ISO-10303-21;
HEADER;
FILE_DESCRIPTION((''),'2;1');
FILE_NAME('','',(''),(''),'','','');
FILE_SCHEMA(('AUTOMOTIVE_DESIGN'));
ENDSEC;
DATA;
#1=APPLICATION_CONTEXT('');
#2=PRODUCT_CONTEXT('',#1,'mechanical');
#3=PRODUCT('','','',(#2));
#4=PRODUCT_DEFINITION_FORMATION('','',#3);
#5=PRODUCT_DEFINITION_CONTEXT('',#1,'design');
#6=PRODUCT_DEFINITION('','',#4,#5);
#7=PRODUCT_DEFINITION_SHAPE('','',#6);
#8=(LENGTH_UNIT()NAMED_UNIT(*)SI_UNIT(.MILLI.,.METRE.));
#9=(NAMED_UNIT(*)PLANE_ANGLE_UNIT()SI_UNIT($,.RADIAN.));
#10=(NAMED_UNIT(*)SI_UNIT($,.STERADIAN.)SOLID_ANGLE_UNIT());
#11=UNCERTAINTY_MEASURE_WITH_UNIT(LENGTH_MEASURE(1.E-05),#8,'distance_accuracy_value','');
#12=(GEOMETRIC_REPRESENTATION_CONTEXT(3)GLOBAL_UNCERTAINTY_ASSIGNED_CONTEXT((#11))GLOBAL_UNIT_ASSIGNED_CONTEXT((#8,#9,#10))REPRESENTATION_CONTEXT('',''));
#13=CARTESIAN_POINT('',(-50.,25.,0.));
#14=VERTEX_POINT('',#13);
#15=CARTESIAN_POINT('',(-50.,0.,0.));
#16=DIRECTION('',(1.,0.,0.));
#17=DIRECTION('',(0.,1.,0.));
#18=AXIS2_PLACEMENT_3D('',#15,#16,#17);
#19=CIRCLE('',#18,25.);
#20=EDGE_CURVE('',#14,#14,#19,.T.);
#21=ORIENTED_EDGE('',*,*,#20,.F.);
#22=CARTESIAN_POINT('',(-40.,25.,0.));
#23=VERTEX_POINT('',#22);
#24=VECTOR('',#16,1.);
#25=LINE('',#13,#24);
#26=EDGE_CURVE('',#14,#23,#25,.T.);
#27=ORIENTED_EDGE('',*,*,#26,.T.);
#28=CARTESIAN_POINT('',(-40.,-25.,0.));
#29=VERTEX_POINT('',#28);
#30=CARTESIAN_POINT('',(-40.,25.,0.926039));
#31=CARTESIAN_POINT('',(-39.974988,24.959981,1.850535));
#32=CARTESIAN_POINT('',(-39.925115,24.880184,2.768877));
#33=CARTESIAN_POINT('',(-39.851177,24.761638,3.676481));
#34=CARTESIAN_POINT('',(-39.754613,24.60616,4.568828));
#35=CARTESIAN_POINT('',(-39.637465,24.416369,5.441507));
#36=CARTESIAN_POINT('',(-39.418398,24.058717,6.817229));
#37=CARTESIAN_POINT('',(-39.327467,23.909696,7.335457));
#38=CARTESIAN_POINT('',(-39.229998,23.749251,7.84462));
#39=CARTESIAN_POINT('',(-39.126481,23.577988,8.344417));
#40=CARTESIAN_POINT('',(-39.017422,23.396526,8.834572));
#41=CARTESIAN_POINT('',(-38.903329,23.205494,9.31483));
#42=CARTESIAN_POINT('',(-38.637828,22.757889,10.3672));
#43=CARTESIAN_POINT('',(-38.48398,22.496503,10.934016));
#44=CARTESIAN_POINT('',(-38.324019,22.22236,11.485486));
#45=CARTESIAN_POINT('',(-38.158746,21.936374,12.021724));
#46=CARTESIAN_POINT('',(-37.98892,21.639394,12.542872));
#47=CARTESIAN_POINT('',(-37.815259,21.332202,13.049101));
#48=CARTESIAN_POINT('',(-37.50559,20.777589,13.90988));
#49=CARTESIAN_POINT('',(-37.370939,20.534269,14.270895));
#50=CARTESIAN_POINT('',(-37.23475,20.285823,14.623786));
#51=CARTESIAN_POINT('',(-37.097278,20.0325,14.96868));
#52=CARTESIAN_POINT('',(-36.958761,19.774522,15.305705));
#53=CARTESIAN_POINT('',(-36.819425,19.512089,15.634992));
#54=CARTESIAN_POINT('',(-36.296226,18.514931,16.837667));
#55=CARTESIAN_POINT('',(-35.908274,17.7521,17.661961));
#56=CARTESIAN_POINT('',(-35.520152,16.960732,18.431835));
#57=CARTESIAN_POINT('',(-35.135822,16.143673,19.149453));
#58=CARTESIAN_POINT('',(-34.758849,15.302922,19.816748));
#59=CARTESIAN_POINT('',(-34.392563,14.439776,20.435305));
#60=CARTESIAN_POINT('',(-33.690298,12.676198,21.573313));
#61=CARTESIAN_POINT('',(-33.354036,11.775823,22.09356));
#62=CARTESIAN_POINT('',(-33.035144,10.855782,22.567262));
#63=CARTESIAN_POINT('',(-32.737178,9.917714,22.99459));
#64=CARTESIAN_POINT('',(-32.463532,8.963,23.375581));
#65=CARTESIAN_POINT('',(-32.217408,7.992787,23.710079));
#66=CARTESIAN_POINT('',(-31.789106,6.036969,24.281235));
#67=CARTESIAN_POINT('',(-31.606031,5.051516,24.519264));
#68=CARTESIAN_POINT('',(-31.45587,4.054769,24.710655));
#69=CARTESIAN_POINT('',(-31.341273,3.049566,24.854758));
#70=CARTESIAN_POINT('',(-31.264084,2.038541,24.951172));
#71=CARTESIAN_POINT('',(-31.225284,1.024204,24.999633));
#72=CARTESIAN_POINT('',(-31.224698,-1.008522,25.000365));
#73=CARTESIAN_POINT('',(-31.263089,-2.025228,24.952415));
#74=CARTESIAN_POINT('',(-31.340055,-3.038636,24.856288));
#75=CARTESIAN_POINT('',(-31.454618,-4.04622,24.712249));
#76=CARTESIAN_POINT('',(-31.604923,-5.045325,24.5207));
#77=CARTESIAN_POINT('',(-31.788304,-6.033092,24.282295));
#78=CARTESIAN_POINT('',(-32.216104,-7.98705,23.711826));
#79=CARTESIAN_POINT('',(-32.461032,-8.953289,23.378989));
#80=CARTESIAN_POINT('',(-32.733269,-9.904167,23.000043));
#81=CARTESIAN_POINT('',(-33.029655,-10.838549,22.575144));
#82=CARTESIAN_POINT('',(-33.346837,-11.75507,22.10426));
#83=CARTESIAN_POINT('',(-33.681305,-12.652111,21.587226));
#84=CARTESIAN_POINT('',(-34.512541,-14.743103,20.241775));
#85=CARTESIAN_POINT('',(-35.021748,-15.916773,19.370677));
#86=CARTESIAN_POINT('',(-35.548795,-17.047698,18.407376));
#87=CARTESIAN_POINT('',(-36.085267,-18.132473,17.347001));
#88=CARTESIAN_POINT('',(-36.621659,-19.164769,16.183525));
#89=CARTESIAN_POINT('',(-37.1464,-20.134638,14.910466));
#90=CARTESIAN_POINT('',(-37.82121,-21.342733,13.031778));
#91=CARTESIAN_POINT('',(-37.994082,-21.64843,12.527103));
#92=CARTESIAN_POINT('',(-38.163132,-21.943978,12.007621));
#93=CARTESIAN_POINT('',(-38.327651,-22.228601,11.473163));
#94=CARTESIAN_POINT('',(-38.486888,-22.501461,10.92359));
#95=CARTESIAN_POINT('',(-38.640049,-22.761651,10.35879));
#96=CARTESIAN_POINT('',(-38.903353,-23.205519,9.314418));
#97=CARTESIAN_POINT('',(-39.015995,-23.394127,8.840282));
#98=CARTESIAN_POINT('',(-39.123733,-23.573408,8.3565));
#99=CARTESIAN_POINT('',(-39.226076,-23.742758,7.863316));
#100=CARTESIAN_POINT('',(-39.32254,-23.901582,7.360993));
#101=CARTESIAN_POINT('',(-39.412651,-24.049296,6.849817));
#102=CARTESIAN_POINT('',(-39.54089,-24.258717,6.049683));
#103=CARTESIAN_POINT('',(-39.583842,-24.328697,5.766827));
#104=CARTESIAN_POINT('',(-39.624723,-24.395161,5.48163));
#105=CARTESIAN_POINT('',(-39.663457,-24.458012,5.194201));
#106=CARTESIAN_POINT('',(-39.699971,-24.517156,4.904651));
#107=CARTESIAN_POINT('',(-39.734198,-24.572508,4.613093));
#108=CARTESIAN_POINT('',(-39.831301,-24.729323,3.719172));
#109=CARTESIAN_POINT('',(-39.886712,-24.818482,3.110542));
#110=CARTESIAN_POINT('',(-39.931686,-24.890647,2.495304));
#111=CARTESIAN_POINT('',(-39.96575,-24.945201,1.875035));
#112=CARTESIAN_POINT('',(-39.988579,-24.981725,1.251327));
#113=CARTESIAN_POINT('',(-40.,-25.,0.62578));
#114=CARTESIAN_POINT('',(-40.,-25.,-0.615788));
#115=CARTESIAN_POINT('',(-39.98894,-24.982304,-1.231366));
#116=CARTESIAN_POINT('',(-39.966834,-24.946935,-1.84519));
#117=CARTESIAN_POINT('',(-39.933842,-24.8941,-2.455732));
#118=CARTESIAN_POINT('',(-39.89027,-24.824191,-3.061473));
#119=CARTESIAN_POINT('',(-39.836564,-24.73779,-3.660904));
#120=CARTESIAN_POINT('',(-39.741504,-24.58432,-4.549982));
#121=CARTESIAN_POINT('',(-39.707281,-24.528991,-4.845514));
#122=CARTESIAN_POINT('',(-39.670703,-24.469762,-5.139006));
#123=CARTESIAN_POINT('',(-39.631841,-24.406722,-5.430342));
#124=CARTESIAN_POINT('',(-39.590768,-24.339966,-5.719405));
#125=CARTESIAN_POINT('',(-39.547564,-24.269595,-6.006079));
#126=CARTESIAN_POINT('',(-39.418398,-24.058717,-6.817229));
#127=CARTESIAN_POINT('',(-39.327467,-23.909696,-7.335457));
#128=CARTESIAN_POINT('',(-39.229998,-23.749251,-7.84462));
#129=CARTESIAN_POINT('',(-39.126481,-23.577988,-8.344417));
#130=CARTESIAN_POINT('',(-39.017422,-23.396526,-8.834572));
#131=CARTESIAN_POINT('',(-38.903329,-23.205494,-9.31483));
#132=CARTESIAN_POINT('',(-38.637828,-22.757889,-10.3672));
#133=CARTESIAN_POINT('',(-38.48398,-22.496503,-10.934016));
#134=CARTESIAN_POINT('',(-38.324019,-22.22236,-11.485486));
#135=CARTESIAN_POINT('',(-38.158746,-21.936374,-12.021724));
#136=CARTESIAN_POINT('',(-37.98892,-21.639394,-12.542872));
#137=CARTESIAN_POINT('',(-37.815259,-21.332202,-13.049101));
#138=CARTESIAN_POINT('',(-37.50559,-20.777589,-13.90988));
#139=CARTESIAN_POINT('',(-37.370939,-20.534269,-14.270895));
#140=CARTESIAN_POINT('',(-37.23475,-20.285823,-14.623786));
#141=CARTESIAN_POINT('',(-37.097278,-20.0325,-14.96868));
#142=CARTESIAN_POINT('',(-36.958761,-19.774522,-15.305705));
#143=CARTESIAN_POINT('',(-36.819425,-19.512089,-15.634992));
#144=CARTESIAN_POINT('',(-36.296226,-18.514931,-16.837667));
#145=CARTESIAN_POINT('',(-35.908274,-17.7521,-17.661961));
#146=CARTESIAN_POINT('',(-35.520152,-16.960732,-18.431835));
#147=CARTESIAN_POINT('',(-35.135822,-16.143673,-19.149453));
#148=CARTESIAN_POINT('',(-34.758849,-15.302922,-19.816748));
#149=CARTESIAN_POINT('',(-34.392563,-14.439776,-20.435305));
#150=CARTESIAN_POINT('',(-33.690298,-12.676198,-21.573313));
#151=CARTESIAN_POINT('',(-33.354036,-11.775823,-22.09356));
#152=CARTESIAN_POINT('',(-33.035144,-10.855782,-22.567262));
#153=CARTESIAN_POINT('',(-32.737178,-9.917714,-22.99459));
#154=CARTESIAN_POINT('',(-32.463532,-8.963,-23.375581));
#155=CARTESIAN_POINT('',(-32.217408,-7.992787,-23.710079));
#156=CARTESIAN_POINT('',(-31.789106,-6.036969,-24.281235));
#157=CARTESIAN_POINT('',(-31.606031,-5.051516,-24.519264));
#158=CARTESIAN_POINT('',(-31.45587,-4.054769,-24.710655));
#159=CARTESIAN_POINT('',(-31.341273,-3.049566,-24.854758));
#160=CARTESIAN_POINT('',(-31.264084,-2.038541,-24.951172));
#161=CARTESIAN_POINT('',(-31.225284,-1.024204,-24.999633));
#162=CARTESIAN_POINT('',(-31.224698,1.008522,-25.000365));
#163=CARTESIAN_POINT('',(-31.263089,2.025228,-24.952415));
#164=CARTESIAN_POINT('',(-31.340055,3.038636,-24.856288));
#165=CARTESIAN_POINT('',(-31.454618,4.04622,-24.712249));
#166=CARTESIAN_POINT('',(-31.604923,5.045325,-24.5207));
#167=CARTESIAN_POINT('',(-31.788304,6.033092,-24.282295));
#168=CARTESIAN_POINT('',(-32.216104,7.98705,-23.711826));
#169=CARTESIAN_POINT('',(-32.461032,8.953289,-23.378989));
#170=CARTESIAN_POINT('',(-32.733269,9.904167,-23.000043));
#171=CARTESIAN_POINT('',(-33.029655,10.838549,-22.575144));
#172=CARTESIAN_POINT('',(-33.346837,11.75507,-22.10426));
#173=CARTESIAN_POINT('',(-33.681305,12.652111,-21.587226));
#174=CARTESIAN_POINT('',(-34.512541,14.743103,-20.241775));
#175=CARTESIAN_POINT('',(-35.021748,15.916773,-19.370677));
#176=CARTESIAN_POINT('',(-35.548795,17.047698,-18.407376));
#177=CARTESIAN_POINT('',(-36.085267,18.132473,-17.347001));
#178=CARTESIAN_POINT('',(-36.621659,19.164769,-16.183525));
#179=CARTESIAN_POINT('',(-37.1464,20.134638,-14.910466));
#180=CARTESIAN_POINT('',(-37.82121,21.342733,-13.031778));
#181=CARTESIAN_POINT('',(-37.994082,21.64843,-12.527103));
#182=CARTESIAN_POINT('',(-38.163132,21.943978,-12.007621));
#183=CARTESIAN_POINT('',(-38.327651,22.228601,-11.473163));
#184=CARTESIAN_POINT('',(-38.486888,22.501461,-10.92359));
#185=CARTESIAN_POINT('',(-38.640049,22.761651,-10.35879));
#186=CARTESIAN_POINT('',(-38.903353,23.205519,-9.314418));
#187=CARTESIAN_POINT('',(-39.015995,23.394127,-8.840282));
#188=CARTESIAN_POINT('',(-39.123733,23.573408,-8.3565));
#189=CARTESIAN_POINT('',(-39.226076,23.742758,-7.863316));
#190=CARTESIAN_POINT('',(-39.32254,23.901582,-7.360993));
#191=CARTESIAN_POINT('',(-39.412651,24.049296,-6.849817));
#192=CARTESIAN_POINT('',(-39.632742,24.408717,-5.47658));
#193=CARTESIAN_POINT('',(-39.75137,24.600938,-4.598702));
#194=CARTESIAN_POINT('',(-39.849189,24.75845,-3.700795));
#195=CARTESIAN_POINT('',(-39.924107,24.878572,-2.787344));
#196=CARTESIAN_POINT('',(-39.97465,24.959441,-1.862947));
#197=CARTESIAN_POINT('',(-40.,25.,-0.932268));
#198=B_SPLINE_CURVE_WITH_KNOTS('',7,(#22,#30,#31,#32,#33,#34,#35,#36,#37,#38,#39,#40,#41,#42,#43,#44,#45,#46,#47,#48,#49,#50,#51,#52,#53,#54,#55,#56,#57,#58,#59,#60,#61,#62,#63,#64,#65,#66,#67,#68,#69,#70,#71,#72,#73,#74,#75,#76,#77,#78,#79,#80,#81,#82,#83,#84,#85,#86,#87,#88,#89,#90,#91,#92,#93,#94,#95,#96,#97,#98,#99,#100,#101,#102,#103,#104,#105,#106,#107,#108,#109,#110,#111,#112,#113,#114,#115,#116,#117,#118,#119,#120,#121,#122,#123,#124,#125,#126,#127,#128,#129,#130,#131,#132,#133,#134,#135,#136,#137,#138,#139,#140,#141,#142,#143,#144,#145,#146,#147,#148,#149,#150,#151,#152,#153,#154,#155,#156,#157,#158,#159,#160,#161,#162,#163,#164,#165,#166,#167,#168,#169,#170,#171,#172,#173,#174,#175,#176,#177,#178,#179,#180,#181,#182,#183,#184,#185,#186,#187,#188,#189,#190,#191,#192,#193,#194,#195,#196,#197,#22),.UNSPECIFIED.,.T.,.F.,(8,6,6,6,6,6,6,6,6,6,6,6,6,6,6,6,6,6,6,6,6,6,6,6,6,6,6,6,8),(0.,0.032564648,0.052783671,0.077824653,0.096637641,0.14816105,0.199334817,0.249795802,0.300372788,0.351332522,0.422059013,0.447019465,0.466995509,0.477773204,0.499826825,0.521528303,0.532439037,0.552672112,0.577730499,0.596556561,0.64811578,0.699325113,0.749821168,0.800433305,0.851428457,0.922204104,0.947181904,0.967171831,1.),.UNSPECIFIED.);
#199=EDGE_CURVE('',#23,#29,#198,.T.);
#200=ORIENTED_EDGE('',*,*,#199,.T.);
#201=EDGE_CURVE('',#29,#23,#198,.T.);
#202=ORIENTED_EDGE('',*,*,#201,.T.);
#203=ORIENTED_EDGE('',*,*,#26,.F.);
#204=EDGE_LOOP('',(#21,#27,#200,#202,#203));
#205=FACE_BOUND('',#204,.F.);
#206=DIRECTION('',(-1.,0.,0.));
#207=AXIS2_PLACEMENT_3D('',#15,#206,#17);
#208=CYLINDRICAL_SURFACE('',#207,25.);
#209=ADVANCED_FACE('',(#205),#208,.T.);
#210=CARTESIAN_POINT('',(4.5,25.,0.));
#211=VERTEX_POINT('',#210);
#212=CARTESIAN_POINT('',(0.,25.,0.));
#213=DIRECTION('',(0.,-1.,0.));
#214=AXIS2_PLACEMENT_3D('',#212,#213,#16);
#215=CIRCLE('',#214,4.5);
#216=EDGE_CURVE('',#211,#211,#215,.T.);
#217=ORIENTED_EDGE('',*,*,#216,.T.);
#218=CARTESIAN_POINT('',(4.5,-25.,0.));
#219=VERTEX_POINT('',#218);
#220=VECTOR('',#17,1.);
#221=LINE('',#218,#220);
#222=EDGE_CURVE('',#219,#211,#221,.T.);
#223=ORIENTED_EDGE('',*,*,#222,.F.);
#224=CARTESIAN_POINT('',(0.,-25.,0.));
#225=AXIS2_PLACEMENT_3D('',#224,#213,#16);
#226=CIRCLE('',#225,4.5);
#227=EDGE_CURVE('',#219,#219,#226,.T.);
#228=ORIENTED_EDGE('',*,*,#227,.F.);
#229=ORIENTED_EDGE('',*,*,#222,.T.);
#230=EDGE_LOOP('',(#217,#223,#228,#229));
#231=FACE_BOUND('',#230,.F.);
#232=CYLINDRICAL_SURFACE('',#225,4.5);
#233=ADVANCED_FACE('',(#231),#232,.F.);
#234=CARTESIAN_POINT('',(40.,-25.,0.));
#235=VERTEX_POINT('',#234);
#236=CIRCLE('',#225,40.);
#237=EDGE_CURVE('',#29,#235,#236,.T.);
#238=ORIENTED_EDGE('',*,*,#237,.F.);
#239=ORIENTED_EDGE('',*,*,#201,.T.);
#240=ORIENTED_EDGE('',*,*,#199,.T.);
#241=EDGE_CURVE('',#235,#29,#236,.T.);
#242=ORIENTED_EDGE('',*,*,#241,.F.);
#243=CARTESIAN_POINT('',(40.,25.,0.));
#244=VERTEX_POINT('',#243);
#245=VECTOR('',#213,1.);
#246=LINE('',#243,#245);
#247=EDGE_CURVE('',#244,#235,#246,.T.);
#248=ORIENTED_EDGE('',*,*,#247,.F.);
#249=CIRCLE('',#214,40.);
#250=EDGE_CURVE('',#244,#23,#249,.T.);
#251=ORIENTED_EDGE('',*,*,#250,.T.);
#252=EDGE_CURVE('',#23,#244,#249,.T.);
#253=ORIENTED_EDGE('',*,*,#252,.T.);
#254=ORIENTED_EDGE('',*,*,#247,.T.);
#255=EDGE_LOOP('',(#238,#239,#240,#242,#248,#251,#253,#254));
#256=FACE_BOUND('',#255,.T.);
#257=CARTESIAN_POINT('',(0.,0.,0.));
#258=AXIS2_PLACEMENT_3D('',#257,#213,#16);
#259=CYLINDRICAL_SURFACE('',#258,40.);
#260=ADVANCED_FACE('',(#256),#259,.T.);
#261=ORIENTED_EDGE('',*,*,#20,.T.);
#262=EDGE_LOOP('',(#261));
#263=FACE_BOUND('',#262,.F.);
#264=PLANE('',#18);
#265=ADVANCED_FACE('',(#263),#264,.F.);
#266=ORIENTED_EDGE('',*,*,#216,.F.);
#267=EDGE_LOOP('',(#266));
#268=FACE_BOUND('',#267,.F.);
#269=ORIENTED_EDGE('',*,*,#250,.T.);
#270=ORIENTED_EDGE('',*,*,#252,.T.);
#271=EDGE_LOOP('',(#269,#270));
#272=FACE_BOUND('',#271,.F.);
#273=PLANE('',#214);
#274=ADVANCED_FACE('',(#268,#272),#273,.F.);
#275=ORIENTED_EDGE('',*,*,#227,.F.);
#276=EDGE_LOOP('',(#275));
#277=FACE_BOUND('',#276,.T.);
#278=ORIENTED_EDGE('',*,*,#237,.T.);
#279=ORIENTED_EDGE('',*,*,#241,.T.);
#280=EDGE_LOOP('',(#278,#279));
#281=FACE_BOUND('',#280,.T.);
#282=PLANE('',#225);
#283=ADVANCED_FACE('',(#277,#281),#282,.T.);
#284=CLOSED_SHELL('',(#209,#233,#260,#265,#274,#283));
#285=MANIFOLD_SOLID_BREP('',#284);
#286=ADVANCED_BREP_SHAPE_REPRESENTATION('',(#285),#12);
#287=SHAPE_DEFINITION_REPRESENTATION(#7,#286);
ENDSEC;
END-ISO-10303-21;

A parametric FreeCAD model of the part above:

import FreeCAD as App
import Part
import Sketcher

V = App.Vector

doc = App.newDocument("Part")
body = doc.addObject("PartDesign::Body", "Body")

sketch1 = body.newObject("Sketcher::SketchObject", "Sketch")
sketch1.AttachmentSupport = (doc.getObject("XZ_Plane"), [""])
sketch1.MapMode = "FlatFace"
sketch1.addGeometry(Part.Circle(V(0, 0, 0), V(0, 0, 1), 40), False)
sketch1.addConstraint([
    Sketcher.Constraint("Coincident", 0, 3, -1, 1),
    Sketcher.Constraint("Diameter", 0, 80.0),
])
pad1 = body.newObject("PartDesign::Pad", "Pad")
pad1.Profile = sketch1
pad1.Length = 50
pad1.Midplane = True

sketch2 = body.newObject("Sketcher::SketchObject", "Sketch001")
sketch2.AttachmentSupport = (doc.getObject("YZ_Plane"), [""])
sketch2.MapMode = "FlatFace"
sketch2.AttachmentOffset = App.Placement(V(0, 0, -50), App.Rotation())
sketch2.addGeometry(Part.Circle(V(0, 0, 0), V(0, 0, 1), 25), False)
sketch2.addConstraint([
    Sketcher.Constraint("Coincident", 0, 3, -1, 1),
    Sketcher.Constraint("Diameter", 0, 50.0),
])
pad2 = body.newObject("PartDesign::Pad", "Pad001")
pad2.Profile = sketch2
pad2.Length = 19.77501

sketch3 = body.newObject("Sketcher::SketchObject", "Sketch002")
sketch3.AttachmentSupport = (doc.getObject("XZ_Plane"), [""])
sketch3.MapMode = "FlatFace"
sketch3.AttachmentOffset = App.Placement(V(0, 0, 25), App.Rotation())
sketch3.addGeometry(Part.Circle(V(0, 0, 0), V(0, 0, 1), 4.5), False)
sketch3.addConstraint([
    Sketcher.Constraint("Coincident", 0, 3, -1, 1),
    Sketcher.Constraint("Diameter", 0, 9.0),
])
pocket1 = body.newObject("PartDesign::Pocket", "Pocket")
pocket1.Profile = sketch3
pocket1.Type = "ThroughAll"

doc.recompute()
